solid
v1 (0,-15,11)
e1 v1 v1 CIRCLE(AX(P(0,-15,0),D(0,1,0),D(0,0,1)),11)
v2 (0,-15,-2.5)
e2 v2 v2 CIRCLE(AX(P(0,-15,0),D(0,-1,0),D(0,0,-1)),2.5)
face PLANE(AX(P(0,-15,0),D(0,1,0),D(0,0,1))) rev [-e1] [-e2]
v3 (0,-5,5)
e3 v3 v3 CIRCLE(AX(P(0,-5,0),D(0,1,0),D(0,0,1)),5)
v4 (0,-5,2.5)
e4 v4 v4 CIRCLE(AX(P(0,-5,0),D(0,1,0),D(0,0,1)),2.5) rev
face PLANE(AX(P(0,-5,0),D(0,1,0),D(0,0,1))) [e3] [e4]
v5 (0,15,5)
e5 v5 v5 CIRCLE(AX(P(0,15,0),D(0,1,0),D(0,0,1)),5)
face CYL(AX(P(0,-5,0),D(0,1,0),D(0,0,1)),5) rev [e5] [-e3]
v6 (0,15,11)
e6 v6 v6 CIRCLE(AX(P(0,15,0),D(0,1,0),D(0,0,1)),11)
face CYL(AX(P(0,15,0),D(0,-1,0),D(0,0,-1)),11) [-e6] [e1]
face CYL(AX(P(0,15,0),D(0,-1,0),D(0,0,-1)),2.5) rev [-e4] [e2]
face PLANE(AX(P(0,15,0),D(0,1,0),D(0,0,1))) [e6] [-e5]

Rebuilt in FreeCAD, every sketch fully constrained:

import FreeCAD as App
import Part
import Sketcher

V = App.Vector
Q = App.Units.Quantity

doc = App.newDocument("Part")
body = doc.addObject("PartDesign::Body", "Body")

# Sketch on XZ plane
sketch1 = body.newObject("Sketcher::SketchObject", "Sketch")
sketch1.AttachmentSupport = (doc.getObject("XZ_Plane"), [""])
sketch1.MapMode = "FlatFace"
sketch1.addGeometry(Part.Circle(V(0, 0, 0), V(0, 0, 1), 11), False)
sketch1.addConstraint([
    Sketcher.Constraint("Coincident", 0, 3, -1, 1),
    Sketcher.Constraint("Diameter", 0, Q("22 mm")),
])
pad1 = body.newObject("PartDesign::Pad", "Pad")
pad1.Profile = sketch1
pad1.Length = 30
pad1.Midplane = True

# Sketch on XZ plane
sketch2 = body.newObject("Sketcher::SketchObject", "Sketch001")
sketch2.AttachmentSupport = (doc.getObject("XZ_Plane"), [""])
sketch2.MapMode = "FlatFace"
sketch2.AttachmentOffset = App.Placement(V(0, 0, 15), App.Rotation())
sketch2.addGeometry(Part.Circle(V(0, 0, 0), V(0, 0, 1), 2.5), False)
sketch2.addConstraint([
    Sketcher.Constraint("Coincident", 0, 3, -1, 1),
    Sketcher.Constraint("Diameter", 0, Q("5 mm")),
])
pocket1 = body.newObject("PartDesign::Pocket", "Pocket")
pocket1.Profile = sketch2
pocket1.Type = "ThroughAll"

# Sketch on XZ plane
sketch3 = body.newObject("Sketcher::SketchObject", "Sketch002")
sketch3.AttachmentSupport = (doc.getObject("XZ_Plane"), [""])
sketch3.MapMode = "FlatFace"
sketch3.AttachmentOffset = App.Placement(V(0, 0, -15), App.Rotation())
sketch3.addGeometry(Part.Circle(V(0, 0, 0), V(0, 0, 1), 5), False)
sketch3.addConstraint([
    Sketcher.Constraint("Coincident", 0, 3, -1, 1),
    Sketcher.Constraint("Diameter", 0, Q("10 mm")),
])
pocket2 = body.newObject("PartDesign::Pocket", "Pocket001")
pocket2.Profile = sketch3
pocket2.Length = 20
pocket2.Reversed = True

doc.recompute()
